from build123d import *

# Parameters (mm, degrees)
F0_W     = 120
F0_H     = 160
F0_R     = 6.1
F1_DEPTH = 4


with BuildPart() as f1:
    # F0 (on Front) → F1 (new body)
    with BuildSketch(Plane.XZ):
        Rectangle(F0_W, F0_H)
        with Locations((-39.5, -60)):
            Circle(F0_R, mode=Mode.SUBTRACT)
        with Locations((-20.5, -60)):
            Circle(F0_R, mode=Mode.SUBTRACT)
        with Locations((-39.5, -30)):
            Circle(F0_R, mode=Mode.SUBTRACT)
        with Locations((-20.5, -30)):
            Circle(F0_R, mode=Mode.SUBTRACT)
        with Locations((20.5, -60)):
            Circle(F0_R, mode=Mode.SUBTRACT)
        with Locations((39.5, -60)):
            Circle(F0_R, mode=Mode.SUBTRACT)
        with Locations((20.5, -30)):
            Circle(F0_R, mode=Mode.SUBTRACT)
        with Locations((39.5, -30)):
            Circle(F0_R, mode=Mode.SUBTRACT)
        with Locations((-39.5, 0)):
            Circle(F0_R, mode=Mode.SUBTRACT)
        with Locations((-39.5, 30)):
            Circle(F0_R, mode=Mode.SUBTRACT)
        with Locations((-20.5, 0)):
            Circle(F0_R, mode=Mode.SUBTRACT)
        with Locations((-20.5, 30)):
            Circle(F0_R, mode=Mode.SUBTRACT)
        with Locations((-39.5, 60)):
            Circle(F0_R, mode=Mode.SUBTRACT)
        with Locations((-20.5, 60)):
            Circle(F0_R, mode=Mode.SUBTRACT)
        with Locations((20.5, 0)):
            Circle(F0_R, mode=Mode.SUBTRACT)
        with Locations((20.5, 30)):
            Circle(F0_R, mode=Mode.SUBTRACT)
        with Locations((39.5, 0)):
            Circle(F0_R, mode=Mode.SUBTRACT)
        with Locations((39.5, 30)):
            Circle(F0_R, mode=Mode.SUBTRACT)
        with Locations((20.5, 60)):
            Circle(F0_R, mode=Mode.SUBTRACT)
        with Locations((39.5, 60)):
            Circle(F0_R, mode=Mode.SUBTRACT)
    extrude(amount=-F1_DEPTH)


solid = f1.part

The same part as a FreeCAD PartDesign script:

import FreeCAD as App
import Part
import Sketcher

V = App.Vector

doc = App.newDocument("Part")
params = doc.addObject("Spreadsheet::Sheet", "Params")
for row, (alias, value) in enumerate([
    ("sketch1_diameter", "12.2 mm"),
    ("sketch1_width", "120 mm"),
    ("sketch1_height", "160 mm"),
    ("pad1_length", "4 mm"),
], start=1):
    params.set(f"A{row}", alias)
    params.set(f"B{row}", "=" + value)
    params.setAlias(f"B{row}", alias)

body = doc.addObject("PartDesign::Body", "Body")

# Sketch on XZ plane
sketch1 = doc.addObject("Sketcher::SketchObject", "Sketch")
body.addObject(sketch1)
sketch1.AttachmentSupport = (doc.XZ_Plane, [""])
sketch1.MapMode = "FlatFace"
sketch1.addGeometry(Part.LineSegment(V(-60, 80, 0), V(-60, -80, 0)), False)
sketch1.addGeometry(Part.LineSegment(V(-60, -80, 0), V(60, -80, 0)), False)
sketch1.addGeometry(Part.LineSegment(V(60, -80, 0), V(60, 80, 0)), False)
sketch1.addGeometry(Part.LineSegment(V(60, 80, 0), V(-60, 80, 0)), False)
sketch1.addGeometry(Part.Circle(V(-39.5, -60, 0), V(0, 0, 1), 6.1), False)
sketch1.addGeometry(Part.Circle(V(-20.5, -60, 0), V(0, 0, 1), 6.1), False)
sketch1.addGeometry(Part.Circle(V(-39.5, -30, 0), V(0, 0, 1), 6.1), False)
sketch1.addGeometry(Part.Circle(V(-20.5, -30, 0), V(0, 0, 1), 6.1), False)
sketch1.addGeometry(Part.Circle(V(20.5, -60, 0), V(0, 0, 1), 6.1), False)
sketch1.addGeometry(Part.Circle(V(39.5, -60, 0), V(0, 0, 1), 6.1), False)
sketch1.addGeometry(Part.Circle(V(20.5, -30, 0), V(0, 0, 1), 6.1), False)
sketch1.addGeometry(Part.Circle(V(39.5, -30, 0), V(0, 0, 1), 6.1), False)
sketch1.addGeometry(Part.Circle(V(-39.5, 0, 0), V(0, 0, 1), 6.1), False)
sketch1.addGeometry(Part.Circle(V(-39.5, 30, 0), V(0, 0, 1), 6.1), False)
sketch1.addGeometry(Part.Circle(V(-20.5, 0, 0), V(0, 0, 1), 6.1), False)
sketch1.addGeometry(Part.Circle(V(-20.5, 30, 0), V(0, 0, 1), 6.1), False)
sketch1.addGeometry(Part.Circle(V(-39.5, 60, 0), V(0, 0, 1), 6.1), False)
sketch1.addGeometry(Part.Circle(V(-20.5, 60, 0), V(0, 0, 1), 6.1), False)
sketch1.addGeometry(Part.Circle(V(20.5, 0, 0), V(0, 0, 1), 6.1), False)
sketch1.addGeometry(Part.Circle(V(20.5, 30, 0), V(0, 0, 1), 6.1), False)
sketch1.addGeometry(Part.Circle(V(39.5, 0, 0), V(0, 0, 1), 6.1), False)
sketch1.addGeometry(Part.Circle(V(39.5, 30, 0), V(0, 0, 1), 6.1), False)
sketch1.addGeometry(Part.Circle(V(20.5, 60, 0), V(0, 0, 1), 6.1), False)
sketch1.addGeometry(Part.Circle(V(39.5, 60, 0), V(0, 0, 1), 6.1), False)
sketch1.addConstraint(Sketcher.Constraint("Coincident", 0, 2, 1, 1))
sketch1.addConstraint(Sketcher.Constraint("Coincident", 1, 2, 2, 1))
sketch1.addConstraint(Sketcher.Constraint("Coincident", 2, 2, 3, 1))
sketch1.addConstraint(Sketcher.Constraint("Coincident", 3, 2, 0, 1))
sketch1.addConstraint(Sketcher.Constraint("Vertical", 0))
sketch1.addConstraint(Sketcher.Constraint("Horizontal", 1))
sketch1.addConstraint(Sketcher.Constraint("Vertical", 2))
sketch1.addConstraint(Sketcher.Constraint("Horizontal", 3))
sketch1.addConstraint(Sketcher.Constraint("Equal", 4, 5))
sketch1.addConstraint(Sketcher.Constraint("Equal", 5, 6))
sketch1.addConstraint(Sketcher.Constraint("Equal", 6, 7))
sketch1.addConstraint(Sketcher.Constraint("Equal", 7, 8))
sketch1.addConstraint(Sketcher.Constraint("Equal", 8, 9))
sketch1.addConstraint(Sketcher.Constraint("Equal", 9, 10))
sketch1.addConstraint(Sketcher.Constraint("Equal", 10, 11))
sketch1.addConstraint(Sketcher.Constraint("Equal", 11, 12))
sketch1.addConstraint(Sketcher.Constraint("Equal", 12, 13))
sketch1.addConstraint(Sketcher.Constraint("Equal", 13, 14))
sketch1.addConstraint(Sketcher.Constraint("Equal", 14, 15))
sketch1.addConstraint(Sketcher.Constraint("Equal", 15, 16))
sketch1.addConstraint(Sketcher.Constraint("Equal", 16, 17))
sketch1.addConstraint(Sketcher.Constraint("Equal", 17, 18))
sketch1.addConstraint(Sketcher.Constraint("Equal", 18, 19))
sketch1.addConstraint(Sketcher.Constraint("Equal", 19, 20))
sketch1.addConstraint(Sketcher.Constraint("Equal", 20, 21))
sketch1.addConstraint(Sketcher.Constraint("Equal", 21, 22))
sketch1.addConstraint(Sketcher.Constraint("Equal", 22, 23))
sketch1.addConstraint(Sketcher.Constraint("Symmetric", 11, 3, 13, 3, -1, 1))
sketch1.addConstraint(Sketcher.Constraint("Symmetric", 10, 3, 15, 3, -1, 1))
sketch1.addConstraint(Sketcher.Constraint("Symmetric", 9, 3, 16, 3, -1, 1))
sketch1.addConstraint(Sketcher.Constraint("Symmetric", 8, 3, 17, 3, -1, 1))
sketch1.addConstraint(Sketcher.Constraint("Symmetric", 14, 3, 18, 3, -1, 1))
sketch1.addConstraint(Sketcher.Constraint("Symmetric", 7, 3, 19, 3, -1, 1))
sketch1.addConstraint(Sketcher.Constraint("Symmetric", 12, 3, 20, 3, -1, 1))
sketch1.addConstraint(Sketcher.Constraint("Symmetric", 6, 3, 21, 3, -1, 1))
sketch1.addConstraint(Sketcher.Constraint("Symmetric", 5, 3, 22, 3, -1, 1))
sketch1.addConstraint(Sketcher.Constraint("Symmetric", 4, 3, 23, 3, -1, 1))
sketch1.addConstraint(Sketcher.Constraint("Symmetric", 0, 2, 2, 2, -1, 1))
sketch1.addConstraint(Sketcher.Constraint("Symmetric", 5, 3, 8, 3, -2))
sketch1.addConstraint(Sketcher.Constraint("Symmetric", 4, 3, 9, 3, -2))
sketch1.addConstraint(Sketcher.Constraint("Symmetric", 7, 3, 10, 3, -2))
sketch1.addConstraint(Sketcher.Constraint("Symmetric", 6, 3, 11, 3, -2))
sketch1.addConstraint(Sketcher.Constraint("PointOnObject", 12, 3, -1))
sketch1.addConstraint(Sketcher.Constraint("PointOnObject", 14, 3, -1))
sketch1.addConstraint(Sketcher.Constraint("Horizontal", 4, 3, 5, 3))
sketch1.addConstraint(Sketcher.Constraint("Horizontal", 6, 3, 7, 3))
sketch1.addConstraint(Sketcher.Constraint("Vertical", 4, 3, 6, 3))
sketch1.addConstraint(Sketcher.Constraint("Vertical", 5, 3, 7, 3))
sketch1.addConstraint(Sketcher.Constraint("Vertical", 6, 3, 12, 3))
sketch1.addConstraint(Sketcher.Constraint("Vertical", 7, 3, 14, 3))
sketch1.addConstraint(Sketcher.Constraint("Diameter", 4, 12.2))
sketch1.addConstraint(Sketcher.Constraint("DistanceX", 1, 1, 1, 2, 120.0))
sketch1.addConstraint(Sketcher.Constraint("DistanceY", 0, 2, 0, 1, 160.0))
sketch1.addConstraint(Sketcher.Constraint("DistanceY", 4, 3, -1, 1, 60.0))
sketch1.addConstraint(Sketcher.Constraint("DistanceY", 6, 3, -1, 1, 30.0))
sketch1.addConstraint(Sketcher.Constraint("DistanceX", 4, 3, 5, 3, 19.0))
sketch1.addConstraint(Sketcher.Constraint("DistanceX", 5, 3, 8, 3, 41.0))
sketch1.setExpression("Constraints[50]", "Params.sketch1_diameter")
sketch1.setExpression("Constraints[51]", "Params.sketch1_width")
sketch1.setExpression("Constraints[52]", "Params.sketch1_height")
pad1 = doc.addObject("PartDesign::Pad", "Pad")
body.addObject(pad1)
pad1.Profile = sketch1
pad1.setExpression("Length", "Params.pad1_length")
pad1.Reversed = True

doc.recompute()
